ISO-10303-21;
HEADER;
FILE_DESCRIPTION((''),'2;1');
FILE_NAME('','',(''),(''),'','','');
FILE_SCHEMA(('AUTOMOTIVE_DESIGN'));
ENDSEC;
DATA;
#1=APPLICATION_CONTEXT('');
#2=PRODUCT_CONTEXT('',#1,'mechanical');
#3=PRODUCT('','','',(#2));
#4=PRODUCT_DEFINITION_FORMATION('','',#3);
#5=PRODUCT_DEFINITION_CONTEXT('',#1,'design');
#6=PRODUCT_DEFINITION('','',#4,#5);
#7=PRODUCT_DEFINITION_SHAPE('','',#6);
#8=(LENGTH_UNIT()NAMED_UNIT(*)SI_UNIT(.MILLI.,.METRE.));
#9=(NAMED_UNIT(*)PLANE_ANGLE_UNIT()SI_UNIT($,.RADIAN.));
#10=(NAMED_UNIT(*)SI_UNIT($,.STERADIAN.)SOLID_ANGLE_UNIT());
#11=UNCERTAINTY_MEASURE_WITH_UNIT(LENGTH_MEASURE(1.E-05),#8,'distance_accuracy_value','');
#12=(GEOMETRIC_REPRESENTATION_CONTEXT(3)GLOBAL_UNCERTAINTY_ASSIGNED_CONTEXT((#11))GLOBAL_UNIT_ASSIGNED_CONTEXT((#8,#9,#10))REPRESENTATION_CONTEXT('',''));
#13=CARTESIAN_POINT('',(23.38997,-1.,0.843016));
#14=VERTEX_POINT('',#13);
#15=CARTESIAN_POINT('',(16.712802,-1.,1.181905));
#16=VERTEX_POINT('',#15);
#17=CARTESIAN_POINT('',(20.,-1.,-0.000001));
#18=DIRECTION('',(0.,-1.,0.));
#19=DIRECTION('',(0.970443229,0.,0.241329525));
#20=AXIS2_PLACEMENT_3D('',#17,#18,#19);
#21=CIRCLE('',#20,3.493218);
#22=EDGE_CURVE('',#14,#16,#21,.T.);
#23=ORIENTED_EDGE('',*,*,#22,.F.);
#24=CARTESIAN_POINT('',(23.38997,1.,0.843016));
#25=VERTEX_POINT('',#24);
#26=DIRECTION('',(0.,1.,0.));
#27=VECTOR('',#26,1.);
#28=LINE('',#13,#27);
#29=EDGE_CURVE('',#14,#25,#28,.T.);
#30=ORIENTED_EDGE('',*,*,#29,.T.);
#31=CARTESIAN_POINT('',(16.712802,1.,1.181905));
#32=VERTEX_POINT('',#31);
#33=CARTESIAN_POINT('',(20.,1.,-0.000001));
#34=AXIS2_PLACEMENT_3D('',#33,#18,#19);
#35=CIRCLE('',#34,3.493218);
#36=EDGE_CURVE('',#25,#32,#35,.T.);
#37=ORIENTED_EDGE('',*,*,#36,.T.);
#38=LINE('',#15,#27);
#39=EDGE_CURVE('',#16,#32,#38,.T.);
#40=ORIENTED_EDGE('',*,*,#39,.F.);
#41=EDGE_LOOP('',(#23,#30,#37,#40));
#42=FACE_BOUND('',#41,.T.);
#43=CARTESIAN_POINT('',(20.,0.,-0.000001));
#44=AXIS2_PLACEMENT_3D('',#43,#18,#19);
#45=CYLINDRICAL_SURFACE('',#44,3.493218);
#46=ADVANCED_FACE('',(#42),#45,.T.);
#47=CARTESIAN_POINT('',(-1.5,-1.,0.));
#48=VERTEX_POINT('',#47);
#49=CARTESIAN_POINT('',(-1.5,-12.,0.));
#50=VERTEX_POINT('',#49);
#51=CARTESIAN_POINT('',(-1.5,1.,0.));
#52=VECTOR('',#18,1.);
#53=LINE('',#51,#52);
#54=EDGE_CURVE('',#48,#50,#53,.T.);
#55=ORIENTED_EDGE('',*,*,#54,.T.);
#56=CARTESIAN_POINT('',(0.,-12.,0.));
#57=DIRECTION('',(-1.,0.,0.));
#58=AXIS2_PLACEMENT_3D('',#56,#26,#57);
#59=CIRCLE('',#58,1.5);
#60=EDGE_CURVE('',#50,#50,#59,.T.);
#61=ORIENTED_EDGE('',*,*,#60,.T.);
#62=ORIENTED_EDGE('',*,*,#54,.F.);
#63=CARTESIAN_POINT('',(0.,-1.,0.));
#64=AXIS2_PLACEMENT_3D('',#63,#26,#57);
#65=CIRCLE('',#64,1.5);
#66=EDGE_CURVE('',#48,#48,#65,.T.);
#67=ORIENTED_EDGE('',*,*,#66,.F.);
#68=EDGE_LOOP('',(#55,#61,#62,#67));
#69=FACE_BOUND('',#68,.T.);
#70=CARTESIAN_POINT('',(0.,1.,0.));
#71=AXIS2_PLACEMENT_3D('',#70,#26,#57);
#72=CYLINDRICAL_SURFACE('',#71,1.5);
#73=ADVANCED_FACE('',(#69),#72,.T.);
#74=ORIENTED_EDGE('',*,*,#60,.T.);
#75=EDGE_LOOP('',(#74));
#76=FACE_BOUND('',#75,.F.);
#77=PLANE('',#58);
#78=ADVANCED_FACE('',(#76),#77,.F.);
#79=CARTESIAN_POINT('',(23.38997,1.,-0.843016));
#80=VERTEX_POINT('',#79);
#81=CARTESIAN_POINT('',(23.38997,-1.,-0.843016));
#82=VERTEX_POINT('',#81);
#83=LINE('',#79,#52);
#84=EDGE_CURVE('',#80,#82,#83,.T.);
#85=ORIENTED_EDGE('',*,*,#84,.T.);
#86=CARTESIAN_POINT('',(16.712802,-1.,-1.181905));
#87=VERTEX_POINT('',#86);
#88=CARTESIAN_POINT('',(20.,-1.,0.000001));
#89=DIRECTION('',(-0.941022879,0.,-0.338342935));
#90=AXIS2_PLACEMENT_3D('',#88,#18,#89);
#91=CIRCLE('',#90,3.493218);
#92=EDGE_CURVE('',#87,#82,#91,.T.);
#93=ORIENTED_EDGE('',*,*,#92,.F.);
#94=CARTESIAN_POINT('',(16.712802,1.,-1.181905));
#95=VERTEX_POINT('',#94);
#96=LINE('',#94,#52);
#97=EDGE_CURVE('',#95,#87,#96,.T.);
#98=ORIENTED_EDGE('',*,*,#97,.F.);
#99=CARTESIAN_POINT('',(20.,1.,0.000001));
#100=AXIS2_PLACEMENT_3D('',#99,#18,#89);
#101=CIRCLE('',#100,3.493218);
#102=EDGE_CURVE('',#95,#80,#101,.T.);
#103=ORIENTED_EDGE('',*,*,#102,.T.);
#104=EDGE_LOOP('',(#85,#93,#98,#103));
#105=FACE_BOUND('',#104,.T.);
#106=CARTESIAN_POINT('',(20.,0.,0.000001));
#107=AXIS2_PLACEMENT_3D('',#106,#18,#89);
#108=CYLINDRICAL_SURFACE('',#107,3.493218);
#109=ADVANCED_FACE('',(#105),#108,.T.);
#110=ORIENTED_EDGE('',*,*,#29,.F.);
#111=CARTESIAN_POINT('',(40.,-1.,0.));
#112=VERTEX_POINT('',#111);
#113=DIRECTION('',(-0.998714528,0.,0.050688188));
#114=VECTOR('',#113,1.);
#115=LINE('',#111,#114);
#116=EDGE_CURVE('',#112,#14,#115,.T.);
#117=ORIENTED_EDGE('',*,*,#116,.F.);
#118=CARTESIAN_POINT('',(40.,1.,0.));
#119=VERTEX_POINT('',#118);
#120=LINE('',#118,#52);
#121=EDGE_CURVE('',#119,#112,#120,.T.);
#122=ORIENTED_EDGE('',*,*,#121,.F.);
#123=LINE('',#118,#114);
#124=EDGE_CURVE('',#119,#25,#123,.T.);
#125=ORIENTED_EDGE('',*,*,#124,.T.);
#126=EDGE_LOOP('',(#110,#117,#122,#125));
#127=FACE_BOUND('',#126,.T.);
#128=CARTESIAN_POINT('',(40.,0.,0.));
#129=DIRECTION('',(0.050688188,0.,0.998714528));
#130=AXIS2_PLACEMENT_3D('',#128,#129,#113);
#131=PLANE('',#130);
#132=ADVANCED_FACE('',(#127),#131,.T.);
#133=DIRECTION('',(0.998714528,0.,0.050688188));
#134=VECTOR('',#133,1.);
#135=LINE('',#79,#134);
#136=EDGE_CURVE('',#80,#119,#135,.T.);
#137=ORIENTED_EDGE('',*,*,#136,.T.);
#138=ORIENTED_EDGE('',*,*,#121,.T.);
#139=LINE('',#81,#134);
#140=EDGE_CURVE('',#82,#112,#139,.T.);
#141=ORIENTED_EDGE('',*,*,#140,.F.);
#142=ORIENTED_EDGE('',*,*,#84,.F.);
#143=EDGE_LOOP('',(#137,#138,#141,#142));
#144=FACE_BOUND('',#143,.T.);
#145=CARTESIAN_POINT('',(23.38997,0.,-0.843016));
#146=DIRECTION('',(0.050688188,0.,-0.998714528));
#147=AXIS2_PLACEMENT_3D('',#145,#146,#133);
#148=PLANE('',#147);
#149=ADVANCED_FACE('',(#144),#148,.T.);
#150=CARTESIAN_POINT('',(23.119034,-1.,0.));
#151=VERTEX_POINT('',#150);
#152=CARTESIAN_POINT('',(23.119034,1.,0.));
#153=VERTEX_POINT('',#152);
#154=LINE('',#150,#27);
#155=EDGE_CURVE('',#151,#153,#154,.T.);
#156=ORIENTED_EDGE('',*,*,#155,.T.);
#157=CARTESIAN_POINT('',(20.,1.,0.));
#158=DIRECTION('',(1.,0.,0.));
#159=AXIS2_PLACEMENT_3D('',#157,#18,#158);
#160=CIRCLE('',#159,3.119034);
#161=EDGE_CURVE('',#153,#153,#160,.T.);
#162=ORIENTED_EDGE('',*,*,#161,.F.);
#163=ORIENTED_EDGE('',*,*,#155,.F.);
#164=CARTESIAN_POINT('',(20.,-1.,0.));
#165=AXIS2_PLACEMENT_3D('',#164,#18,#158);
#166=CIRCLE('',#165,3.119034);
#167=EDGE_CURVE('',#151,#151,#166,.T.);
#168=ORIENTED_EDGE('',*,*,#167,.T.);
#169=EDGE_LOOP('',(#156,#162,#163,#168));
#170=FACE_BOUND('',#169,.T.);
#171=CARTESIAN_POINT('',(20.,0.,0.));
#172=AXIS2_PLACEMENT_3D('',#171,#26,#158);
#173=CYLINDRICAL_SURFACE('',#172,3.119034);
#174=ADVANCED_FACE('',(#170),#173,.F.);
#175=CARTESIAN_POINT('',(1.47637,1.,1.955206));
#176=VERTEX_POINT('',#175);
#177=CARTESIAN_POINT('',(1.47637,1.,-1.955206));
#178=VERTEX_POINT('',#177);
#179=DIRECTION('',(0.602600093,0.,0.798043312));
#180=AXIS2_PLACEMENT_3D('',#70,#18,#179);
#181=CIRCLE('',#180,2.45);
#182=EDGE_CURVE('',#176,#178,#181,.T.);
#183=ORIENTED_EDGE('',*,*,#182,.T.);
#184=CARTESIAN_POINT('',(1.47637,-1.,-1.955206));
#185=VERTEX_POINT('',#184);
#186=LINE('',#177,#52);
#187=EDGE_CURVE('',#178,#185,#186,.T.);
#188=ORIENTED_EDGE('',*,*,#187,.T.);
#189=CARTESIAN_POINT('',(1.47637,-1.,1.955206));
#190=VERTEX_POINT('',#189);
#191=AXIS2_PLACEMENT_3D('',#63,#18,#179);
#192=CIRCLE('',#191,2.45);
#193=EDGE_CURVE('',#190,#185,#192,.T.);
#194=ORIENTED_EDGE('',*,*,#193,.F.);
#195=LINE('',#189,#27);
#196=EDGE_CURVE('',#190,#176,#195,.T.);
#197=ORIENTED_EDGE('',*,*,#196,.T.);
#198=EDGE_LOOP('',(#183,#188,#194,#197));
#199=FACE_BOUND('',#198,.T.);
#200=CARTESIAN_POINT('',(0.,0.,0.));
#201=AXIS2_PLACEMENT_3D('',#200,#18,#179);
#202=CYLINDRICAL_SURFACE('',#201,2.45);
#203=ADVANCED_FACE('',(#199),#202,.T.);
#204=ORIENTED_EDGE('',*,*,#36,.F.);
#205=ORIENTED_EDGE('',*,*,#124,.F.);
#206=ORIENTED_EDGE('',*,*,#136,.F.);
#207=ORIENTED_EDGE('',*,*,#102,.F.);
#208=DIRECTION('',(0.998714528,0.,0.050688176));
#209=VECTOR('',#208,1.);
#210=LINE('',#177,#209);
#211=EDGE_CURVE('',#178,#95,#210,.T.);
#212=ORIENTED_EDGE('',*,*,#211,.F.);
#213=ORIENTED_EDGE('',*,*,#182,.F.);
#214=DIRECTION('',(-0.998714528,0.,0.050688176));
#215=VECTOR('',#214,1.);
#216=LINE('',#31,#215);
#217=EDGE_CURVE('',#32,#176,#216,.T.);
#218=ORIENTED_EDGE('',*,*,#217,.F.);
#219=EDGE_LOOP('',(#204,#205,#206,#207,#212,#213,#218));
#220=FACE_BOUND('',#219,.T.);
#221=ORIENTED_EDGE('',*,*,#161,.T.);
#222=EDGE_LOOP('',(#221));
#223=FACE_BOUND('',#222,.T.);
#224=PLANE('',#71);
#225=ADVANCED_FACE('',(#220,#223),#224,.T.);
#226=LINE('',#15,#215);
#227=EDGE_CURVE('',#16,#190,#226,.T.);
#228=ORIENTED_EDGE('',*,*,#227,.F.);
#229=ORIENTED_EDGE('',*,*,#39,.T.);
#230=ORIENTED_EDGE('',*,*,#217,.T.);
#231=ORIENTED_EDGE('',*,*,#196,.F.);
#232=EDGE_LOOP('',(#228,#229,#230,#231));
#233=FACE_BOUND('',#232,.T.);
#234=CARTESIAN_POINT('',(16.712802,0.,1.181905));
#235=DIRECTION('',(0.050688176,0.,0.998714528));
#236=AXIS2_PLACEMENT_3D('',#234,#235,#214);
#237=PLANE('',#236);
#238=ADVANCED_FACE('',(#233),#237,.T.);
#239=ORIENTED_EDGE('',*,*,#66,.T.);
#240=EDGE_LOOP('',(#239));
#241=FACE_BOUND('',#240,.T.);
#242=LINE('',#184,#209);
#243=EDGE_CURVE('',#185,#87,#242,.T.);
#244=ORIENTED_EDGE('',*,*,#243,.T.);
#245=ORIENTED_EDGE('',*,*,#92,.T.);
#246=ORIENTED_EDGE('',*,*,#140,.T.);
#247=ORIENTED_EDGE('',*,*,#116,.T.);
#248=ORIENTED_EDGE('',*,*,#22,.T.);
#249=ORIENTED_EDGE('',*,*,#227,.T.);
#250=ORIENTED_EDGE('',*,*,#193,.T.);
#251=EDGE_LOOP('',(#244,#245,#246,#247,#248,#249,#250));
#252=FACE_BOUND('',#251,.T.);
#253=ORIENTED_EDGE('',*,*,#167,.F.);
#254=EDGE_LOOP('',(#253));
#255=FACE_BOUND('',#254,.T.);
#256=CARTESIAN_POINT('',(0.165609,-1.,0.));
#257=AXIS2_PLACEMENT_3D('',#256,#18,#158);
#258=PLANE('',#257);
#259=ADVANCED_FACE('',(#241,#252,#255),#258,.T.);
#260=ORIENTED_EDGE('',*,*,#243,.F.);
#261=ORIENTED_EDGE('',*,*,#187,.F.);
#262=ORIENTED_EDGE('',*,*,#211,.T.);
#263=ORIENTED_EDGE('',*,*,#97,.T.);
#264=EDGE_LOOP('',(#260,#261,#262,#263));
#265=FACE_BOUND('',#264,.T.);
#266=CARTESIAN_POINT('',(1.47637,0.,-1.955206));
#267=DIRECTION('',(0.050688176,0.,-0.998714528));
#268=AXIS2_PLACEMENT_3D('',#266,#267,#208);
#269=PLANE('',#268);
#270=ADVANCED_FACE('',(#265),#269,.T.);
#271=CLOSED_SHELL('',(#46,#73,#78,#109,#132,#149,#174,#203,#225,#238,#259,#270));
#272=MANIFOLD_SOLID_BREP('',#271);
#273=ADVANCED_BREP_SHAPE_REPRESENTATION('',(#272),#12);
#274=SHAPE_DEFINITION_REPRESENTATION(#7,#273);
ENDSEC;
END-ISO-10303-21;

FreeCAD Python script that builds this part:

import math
import FreeCAD as App
import Part
import Sketcher

V = App.Vector

doc = App.newDocument("Part")
body = doc.addObject("PartDesign::Body", "Body")

# Sketch on XZ plane
sketch1 = body.newObject("Sketcher::SketchObject", "Sketch")
sketch1.AttachmentSupport = (doc.getObject("XZ_Plane"), [""])
sketch1.MapMode = "FlatFace"
sketch1.addGeometry(Part.ArcOfCircle(Part.Circle(V(0, 0, 0), V(0, 0, 1), 2.4), math.radians(53), math.radians(307)), False)
sketch1.addGeometry(Part.LineSegment(V(1.5, -2, 0), V(16.7, -1.2, 0)), False)
sketch1.addGeometry(Part.ArcOfCircle(Part.Circle(V(20, 0, 0), V(0, 0, 1), 3.5), math.radians(-160), math.radians(-14)), False)
sketch1.addGeometry(Part.LineSegment(V(23.4, -0.8, 0), V(40, 0, 0)), False)
sketch1.addGeometry(Part.LineSegment(V(40, 0, 0), V(23.4, 0.8, 0)), False)
sketch1.addGeometry(Part.ArcOfCircle(Part.Circle(V(20, 0, 0), V(0, 0, 1), 3.5), math.radians(14), math.radians(160)), False)
sketch1.addGeometry(Part.LineSegment(V(16.7, 1.2, 0), V(1.5, 2, 0)), False)
sketch1.addGeometry(Part.Circle(V(20, 0, 0), V(0, 0, 1), 3.1), False)
sketch1.addConstraint(Sketcher.Constraint("Coincident", 0, 2, 1, 1))
sketch1.addConstraint(Sketcher.Constraint("Coincident", 1, 2, 2, 1))
sketch1.addConstraint(Sketcher.Constraint("Coincident", 2, 2, 3, 1))
sketch1.addConstraint(Sketcher.Constraint("Coincident", 3, 2, 4, 1))
sketch1.addConstraint(Sketcher.Constraint("Coincident", 4, 2, 5, 1))
sketch1.addConstraint(Sketcher.Constraint("Coincident", 5, 2, 6, 1))
sketch1.addConstraint(Sketcher.Constraint("Coincident", 6, 2, 0, 1))
sketch1.addConstraint(Sketcher.Constraint("Coincident", 0, 3, -1, 1))
sketch1.addConstraint(Sketcher.Constraint("Coincident", 5, 3, 2, 3))
sketch1.addConstraint(Sketcher.Constraint("Coincident", 7, 3, 2, 3))
sketch1.addConstraint(Sketcher.Constraint("Equal", 2, 5))
sketch1.addConstraint(Sketcher.Constraint("Symmetric", 2, 2, 4, 2, -1))
sketch1.addConstraint(Sketcher.Constraint("PointOnObject", 3, 2, -1))
sketch1.addConstraint(Sketcher.Constraint("Parallel", 1, 3))
sketch1.addConstraint(Sketcher.Constraint("Parallel", 4, 6))
sketch1.addConstraint(Sketcher.Constraint("Vertical", 1, 2, 5, 2))
sketch1.addConstraint(Sketcher.Constraint("Radius", 0, 2.45))
sketch1.addConstraint(Sketcher.Constraint("DistanceX", -1, 1, 2, 3, 20.0))
sketch1.addConstraint(Sketcher.Constraint("DistanceX", -1, 1, 3, 2, 40.0))
sketch1.addConstraint(Sketcher.Constraint("Diameter", 7, 6.238068))
sketch1.addConstraint(Sketcher.Constraint("Radius", 2, 3.493218))
sketch1.addConstraint(Sketcher.Constraint("DistanceX", -1, 1, 1, 2, 16.712802))
sketch1.addConstraint(Sketcher.Constraint("DistanceY", 0, 2, 1, 2, 0.773301))
pad1 = body.newObject("PartDesign::Pad", "Pad")
pad1.Profile = sketch1
pad1.Length = 2
pad1.Midplane = True

# Sketch on XZ plane
sketch2 = body.newObject("Sketcher::SketchObject", "Sketch001")
sketch2.AttachmentSupport = (doc.getObject("XZ_Plane"), [""])
sketch2.MapMode = "FlatFace"
sketch2.AttachmentOffset = App.Placement(V(0, 0, -1), App.Rotation())
sketch2.addGeometry(Part.Circle(V(0, 0, 0), V(0, 0, 1), 1.5), False)
sketch2.addConstraint(Sketcher.Constraint("Coincident", 0, 3, -1, 1))
sketch2.addConstraint(Sketcher.Constraint("Diameter", 0, 3.0))
pad2 = body.newObject("PartDesign::Pad", "Pad001")
pad2.Profile = sketch2
pad2.Length = 13

doc.recompute()
